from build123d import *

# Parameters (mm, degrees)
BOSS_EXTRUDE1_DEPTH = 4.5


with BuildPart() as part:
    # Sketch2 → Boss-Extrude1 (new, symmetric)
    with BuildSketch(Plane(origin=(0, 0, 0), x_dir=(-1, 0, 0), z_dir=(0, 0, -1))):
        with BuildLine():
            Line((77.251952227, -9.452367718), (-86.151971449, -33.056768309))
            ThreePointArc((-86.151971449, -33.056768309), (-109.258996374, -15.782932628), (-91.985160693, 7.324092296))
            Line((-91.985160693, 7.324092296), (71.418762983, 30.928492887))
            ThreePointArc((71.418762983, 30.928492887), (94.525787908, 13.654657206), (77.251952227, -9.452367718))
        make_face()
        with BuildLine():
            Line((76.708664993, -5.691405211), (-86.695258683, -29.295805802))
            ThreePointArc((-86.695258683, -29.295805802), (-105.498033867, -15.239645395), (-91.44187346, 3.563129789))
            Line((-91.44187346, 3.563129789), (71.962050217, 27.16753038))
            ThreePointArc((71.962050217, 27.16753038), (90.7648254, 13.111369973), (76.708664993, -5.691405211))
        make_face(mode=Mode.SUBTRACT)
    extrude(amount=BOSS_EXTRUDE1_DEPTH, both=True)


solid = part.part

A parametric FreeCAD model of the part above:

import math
import FreeCAD as App
import Part
import Sketcher

doc = App.newDocument("Part")
params = doc.addObject("Spreadsheet::Sheet", "Params")
for row, (alias, value) in enumerate([
    ("sketch1_radius", "20.4 mm"),
    ("sketch1_radius2", "16.6 mm"),
    ("sketch1_length", "165.1 mm"),
    ("pad1_length", "9 mm"),
], start=1):
    params.set(f"A{row}", alias)
    params.set(f"B{row}", "=" + value)
    params.setAlias(f"B{row}", alias)

body = doc.addObject("PartDesign::Body", "Body")

# Sketch on XY plane
sketch1 = body.newObject("Sketcher::SketchObject", "Sketch")
sketch1.AttachmentSupport = (doc.getObject("XY_Plane"), [""])
sketch1.MapMode = "FlatFace"
sketch1.addGeometry([
    Part.LineSegment(App.Vector(86.151971, -33.056768, 0), App.Vector(-77.251952, -9.452368, 0)),  # 0
    Part.ArcOfCircle(Part.Circle(App.Vector(-74.335358, 10.738063, 0), App.Vector(0, 0, 1), 20.4), math.radians(81.780237), math.radians(261.780237)),  # 1
    Part.LineSegment(App.Vector(-71.418763, 30.928493, 0), App.Vector(91.985161, 7.324092, 0)),  # 2
    Part.ArcOfCircle(Part.Circle(App.Vector(89.068566, -12.866338, 0), App.Vector(0, 0, 1), 20.4), math.radians(-98.219763), math.radians(81.780237)),  # 3
    Part.LineSegment(App.Vector(-76.708665, -5.691405, 0), App.Vector(86.695259, -29.295806, 0)),  # 4
    Part.ArcOfCircle(Part.Circle(App.Vector(89.068566, -12.866338, 0), App.Vector(0, 0, 1), 16.6), math.radians(-98.219763), math.radians(81.780237)),  # 5
    Part.LineSegment(App.Vector(91.441873, 3.56313, 0), App.Vector(-71.96205, 27.16753, 0)),  # 6
    Part.ArcOfCircle(Part.Circle(App.Vector(-74.335358, 10.738063, 0), App.Vector(0, 0, 1), 16.6), math.radians(81.780237), math.radians(261.780237)),  # 7
], False)
sketch1.addConstraint([
    Sketcher.Constraint("Tangent", 0, 2, 1, 2),
    Sketcher.Constraint("Tangent", 1, 1, 2, 1),
    Sketcher.Constraint("Tangent", 2, 2, 3, 2),
    Sketcher.Constraint("Tangent", 3, 1, 0, 1),
    Sketcher.Constraint("Tangent", 4, 2, 5, 1),
    Sketcher.Constraint("Tangent", 5, 2, 6, 1),
    Sketcher.Constraint("Tangent", 6, 2, 7, 1),
    Sketcher.Constraint("Tangent", 7, 2, 4, 1),
    Sketcher.Constraint("Coincident", 5, 3, 3, 3),
    Sketcher.Constraint("Coincident", 7, 3, 1, 3),
    Sketcher.Constraint("Equal", 1, 3),
    Sketcher.Constraint("Equal", 5, 7),
    Sketcher.Constraint("Radius", 1, 20.4),
    Sketcher.Constraint("Radius", 5, 16.6),
    Sketcher.Constraint("Distance", 0, 165.1),
    Sketcher.Constraint("DistanceY", 3, 3, 1, 3, 23.604401),
    Sketcher.Constraint("DistanceY", 3, 3, -1, 1, 12.866338),
    Sketcher.Constraint("DistanceX", -1, 1, 2, 2, 91.985161),
])
sketch1.setExpression("Constraints[12]", "Params.sketch1_radius")
sketch1.setExpression("Constraints[13]", "Params.sketch1_radius2")
sketch1.setExpression("Constraints[14]", "Params.sketch1_length")
pad1 = body.newObject("PartDesign::Pad", "Pad")
pad1.Profile = sketch1
pad1.setExpression("Length", "Params.pad1_length")
pad1.Midplane = True

doc.recompute()
